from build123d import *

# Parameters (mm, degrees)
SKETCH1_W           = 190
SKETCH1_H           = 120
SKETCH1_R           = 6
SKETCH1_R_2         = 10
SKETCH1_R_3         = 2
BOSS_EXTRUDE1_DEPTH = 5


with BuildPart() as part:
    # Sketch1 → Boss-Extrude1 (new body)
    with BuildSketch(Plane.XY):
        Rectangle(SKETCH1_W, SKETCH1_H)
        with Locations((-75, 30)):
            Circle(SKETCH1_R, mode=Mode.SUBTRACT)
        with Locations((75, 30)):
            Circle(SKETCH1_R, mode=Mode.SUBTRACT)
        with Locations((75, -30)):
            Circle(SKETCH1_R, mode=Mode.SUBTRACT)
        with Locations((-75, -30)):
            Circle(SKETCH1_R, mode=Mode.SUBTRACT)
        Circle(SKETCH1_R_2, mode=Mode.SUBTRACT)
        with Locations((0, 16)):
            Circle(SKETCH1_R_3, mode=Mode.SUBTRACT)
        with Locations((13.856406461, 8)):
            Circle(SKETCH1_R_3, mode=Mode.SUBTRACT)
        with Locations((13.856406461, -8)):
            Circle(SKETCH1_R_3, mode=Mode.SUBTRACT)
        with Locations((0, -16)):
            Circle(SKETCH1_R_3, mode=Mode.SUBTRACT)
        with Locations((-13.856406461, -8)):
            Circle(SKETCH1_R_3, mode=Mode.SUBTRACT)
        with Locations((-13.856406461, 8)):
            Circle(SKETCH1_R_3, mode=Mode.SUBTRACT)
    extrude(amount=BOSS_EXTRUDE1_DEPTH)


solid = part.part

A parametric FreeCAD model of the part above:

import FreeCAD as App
import Part
import Sketcher

V = App.Vector

doc = App.newDocument("Part")
body = doc.addObject("PartDesign::Body", "Body")

sketch1 = doc.addObject("Sketcher::SketchObject", "Sketch")
body.addObject(sketch1)
sketch1.AttachmentSupport = (doc.XY_Plane, [""])
sketch1.MapMode = "FlatFace"
sketch1.addGeometry([
    Part.LineSegment(V(-95, 60, 0), V(-95, -60, 0)),
    Part.LineSegment(V(-95, -60, 0), V(95, -60, 0)),
    Part.LineSegment(V(95, -60, 0), V(95, 60, 0)),
    Part.LineSegment(V(95, 60, 0), V(-95, 60, 0)),
    Part.Circle(V(-75, -30, 0), V(0, 0, 1), 6),
    Part.Circle(V(-13.856406, -8, 0), V(0, 0, 1), 2),
    Part.Circle(V(75, -30, 0), V(0, 0, 1), 6),
    Part.Circle(V(0, -16, 0), V(0, 0, 1), 2),
    Part.Circle(V(13.856406, -8, 0), V(0, 0, 1), 2),
    Part.Circle(V(-13.856406, 8, 0), V(0, 0, 1), 2),
    Part.Circle(V(-75, 30, 0), V(0, 0, 1), 6),
    Part.Circle(V(0, 0, 0), V(0, 0, 1), 10),
    Part.Circle(V(13.856406, 8, 0), V(0, 0, 1), 2),
    Part.Circle(V(0, 16, 0), V(0, 0, 1), 2),
    Part.Circle(V(75, 30, 0), V(0, 0, 1), 6),
], False)
sketch1.addConstraint([
    Sketcher.Constraint("Coincident", 0, 2, 1, 1),
    Sketcher.Constraint("Coincident", 1, 2, 2, 1),
    Sketcher.Constraint("Coincident", 2, 2, 3, 1),
    Sketcher.Constraint("Coincident", 3, 2, 0, 1),
    Sketcher.Constraint("Vertical", 0),
    Sketcher.Constraint("Horizontal", 1),
    Sketcher.Constraint("Vertical", 2),
    Sketcher.Constraint("Horizontal", 3),
    Sketcher.Constraint("Coincident", 11, 3, -1, 1),
    Sketcher.Constraint("Equal", 4, 6),
    Sketcher.Constraint("Equal", 5, 7),
    Sketcher.Constraint("Equal", 7, 8),
    Sketcher.Constraint("Equal", 8, 9),
    Sketcher.Constraint("Equal", 6, 10),
    Sketcher.Constraint("Equal", 9, 12),
    Sketcher.Constraint("Equal", 12, 13),
    Sketcher.Constraint("Equal", 10, 14),
    Sketcher.Constraint("Symmetric", 8, 3, 9, 3, -1, 1),
    Sketcher.Constraint("Symmetric", 6, 3, 10, 3, -1, 1),
    Sketcher.Constraint("Symmetric", 5, 3, 12, 3, -1, 1),
    Sketcher.Constraint("Symmetric", 7, 3, 13, 3, -1, 1),
    Sketcher.Constraint("Symmetric", 4, 3, 14, 3, -1, 1),
    Sketcher.Constraint("Symmetric", 0, 2, 2, 2, -1, 1),
    Sketcher.Constraint("Symmetric", 4, 3, 6, 3, -2),
    Sketcher.Constraint("Symmetric", 5, 3, 8, 3, -2),
    Sketcher.Constraint("PointOnObject", 7, 3, -2),
    Sketcher.Constraint("Diameter", 4, 12.0),
    Sketcher.Constraint("Diameter", 5, 4.0),
    Sketcher.Constraint("Diameter", 11, 20.0),
    Sketcher.Constraint("DistanceX", 1, 1, 1, 2, 190.0),
    Sketcher.Constraint("DistanceY", 0, 2, 0, 1, 120.0),
    Sketcher.Constraint("DistanceX", 4, 3, -1, 1, 75.0),
    Sketcher.Constraint("DistanceY", 4, 3, -1, 1, 30.0),
    Sketcher.Constraint("DistanceY", 5, 3, -1, 1, 8.0),
    Sketcher.Constraint("DistanceY", 7, 3, -1, 1, 16.0),
    Sketcher.Constraint("DistanceX", 5, 3, -1, 1, 13.856406),
])
pad1 = doc.addObject("PartDesign::Pad", "Pad")
body.addObject(pad1)
pad1.Profile = sketch1
pad1.Length = 5

doc.recompute()
